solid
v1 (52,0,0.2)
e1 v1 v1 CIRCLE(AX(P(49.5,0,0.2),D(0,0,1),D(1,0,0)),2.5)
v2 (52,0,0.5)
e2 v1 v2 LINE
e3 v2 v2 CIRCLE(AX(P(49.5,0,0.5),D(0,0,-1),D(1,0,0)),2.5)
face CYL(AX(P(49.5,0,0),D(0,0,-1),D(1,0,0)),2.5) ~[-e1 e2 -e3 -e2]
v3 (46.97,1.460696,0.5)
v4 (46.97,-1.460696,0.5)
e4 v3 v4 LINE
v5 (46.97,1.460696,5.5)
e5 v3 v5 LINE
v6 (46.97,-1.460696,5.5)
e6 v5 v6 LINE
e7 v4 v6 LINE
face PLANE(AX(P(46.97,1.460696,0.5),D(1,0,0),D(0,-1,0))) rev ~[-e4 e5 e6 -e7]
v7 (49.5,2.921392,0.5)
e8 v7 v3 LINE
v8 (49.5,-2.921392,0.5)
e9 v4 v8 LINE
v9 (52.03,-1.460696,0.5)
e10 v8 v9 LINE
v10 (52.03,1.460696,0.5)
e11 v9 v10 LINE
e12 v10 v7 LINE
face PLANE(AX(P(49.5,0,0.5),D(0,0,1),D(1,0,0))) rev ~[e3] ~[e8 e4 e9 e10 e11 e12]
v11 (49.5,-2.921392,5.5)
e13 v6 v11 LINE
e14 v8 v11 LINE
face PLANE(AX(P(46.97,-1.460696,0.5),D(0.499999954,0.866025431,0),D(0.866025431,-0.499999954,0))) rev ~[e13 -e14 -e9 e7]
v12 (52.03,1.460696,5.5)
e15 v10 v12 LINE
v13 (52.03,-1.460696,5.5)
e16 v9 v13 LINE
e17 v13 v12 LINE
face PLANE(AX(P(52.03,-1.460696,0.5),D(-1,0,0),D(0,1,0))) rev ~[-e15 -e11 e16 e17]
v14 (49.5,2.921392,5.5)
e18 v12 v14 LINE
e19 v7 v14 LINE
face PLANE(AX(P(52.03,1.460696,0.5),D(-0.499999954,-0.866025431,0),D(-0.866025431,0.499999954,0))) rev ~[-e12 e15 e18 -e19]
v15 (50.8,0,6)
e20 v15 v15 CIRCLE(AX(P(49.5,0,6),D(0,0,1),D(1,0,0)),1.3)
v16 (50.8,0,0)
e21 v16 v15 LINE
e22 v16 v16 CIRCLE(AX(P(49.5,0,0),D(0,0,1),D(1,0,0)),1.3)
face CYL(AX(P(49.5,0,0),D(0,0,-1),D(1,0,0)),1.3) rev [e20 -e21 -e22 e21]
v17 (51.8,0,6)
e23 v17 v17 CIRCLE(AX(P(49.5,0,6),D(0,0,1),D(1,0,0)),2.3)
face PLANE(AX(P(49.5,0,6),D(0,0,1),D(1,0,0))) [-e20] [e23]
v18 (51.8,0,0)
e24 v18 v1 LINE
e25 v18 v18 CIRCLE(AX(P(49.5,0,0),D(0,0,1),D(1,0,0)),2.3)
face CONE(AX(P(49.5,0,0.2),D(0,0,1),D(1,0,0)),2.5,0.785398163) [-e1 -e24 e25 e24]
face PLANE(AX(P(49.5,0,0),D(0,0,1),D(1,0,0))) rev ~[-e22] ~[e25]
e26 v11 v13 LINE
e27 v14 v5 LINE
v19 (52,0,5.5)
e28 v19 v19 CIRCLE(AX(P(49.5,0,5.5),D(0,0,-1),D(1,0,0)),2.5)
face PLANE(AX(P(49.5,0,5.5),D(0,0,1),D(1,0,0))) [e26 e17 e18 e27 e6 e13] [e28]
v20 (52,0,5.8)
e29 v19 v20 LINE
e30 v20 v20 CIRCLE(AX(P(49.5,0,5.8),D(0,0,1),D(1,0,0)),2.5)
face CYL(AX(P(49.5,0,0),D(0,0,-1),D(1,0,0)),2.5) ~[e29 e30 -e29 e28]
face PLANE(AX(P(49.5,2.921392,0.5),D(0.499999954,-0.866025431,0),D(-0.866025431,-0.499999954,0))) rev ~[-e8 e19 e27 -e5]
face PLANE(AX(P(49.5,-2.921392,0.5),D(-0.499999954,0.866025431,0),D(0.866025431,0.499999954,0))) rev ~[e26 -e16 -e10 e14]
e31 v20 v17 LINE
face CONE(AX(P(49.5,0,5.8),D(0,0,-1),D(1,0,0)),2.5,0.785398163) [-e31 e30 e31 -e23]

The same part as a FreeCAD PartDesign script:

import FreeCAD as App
import Part
import Sketcher
Q = App.Units.Quantity


def edges_at(feature, points):
    """Names of the edges that pass closest to the given points."""
    edges = feature.Shape.Edges
    near = lambda p: min(range(len(edges)), key=lambda i: edges[i].distToShape(Part.Vertex(*p))[0])
    return sorted({f"Edge{near(p) + 1}" for p in points})


def add_polygon(sketch, points):
    """Adds a closed chain of lines whose ends are joined by coincident constraints."""
    first, n = sketch.GeometryCount, len(points)
    for a, b in zip(points, points[1:] + points[:1]):
        sketch.addGeometry(Part.LineSegment(App.Vector(*a, 0), App.Vector(*b, 0)), False)
    for i in range(n):
        sketch.addConstraint(Sketcher.Constraint("Coincident", first + i, 2, first + (i + 1) % n, 1))

doc = App.newDocument("Part")
body = doc.addObject("PartDesign::Body", "Body")

sketch1 = doc.addObject("Sketcher::SketchObject", "Sketch")
body.addObject(sketch1)
sketch1.AttachmentSupport = (doc.XY_Plane, [""])
sketch1.MapMode = "FlatFace"
sketch1.addGeometry(Part.Circle(App.Vector(0, 0, 0), App.Vector(0, 0, 1), 2.5), False)
sketch1.addGeometry(Part.Circle(App.Vector(0, 0, 0), App.Vector(0, 0, 1), 1.3), False)
sketch1.addConstraint(Sketcher.Constraint("Coincident", 0, 3, -1, 1))
sketch1.addConstraint(Sketcher.Constraint("Coincident", 1, 3, -1, 1))
sketch1.addConstraint(Sketcher.Constraint("Diameter", 0, Q("5 mm")))
sketch1.addConstraint(Sketcher.Constraint("Diameter", 1, Q("2.6 mm")))
pad1 = doc.addObject("PartDesign::Pad", "Pad")
body.addObject(pad1)
pad1.Profile = sketch1
pad1.Length = 6

sketch2 = doc.addObject("Sketcher::SketchObject", "Sketch001")
body.addObject(sketch2)
sketch2.AttachmentSupport = (doc.XY_Plane, [""])
sketch2.MapMode = "FlatFace"
sketch2.AttachmentOffset = App.Placement(App.Vector(0, 0, 0.5), App.Rotation())
add_polygon(sketch2, [(2.5, -1.5), (2.5, 1.5), (0, 2.9), (-2.5, 1.5), (-2.5, -1.5), (0, -2.9)])
sketch2.addGeometry(Part.Circle(App.Vector(0, 0, 0), App.Vector(0, 0, 1), 1.3), False)
sketch2.addConstraint(Sketcher.Constraint("Vertical", 0))
sketch2.addConstraint(Sketcher.Constraint("Vertical", 3))
sketch2.addConstraint(Sketcher.Constraint("Coincident", 6, 3, -1, 1))
sketch2.addConstraint(Sketcher.Constraint("Symmetric", 0, 2, 3, 2, -1, 1))
sketch2.addConstraint(Sketcher.Constraint("Symmetric", 1, 2, 4, 2, -1, 1))
sketch2.addConstraint(Sketcher.Constraint("PointOnObject", 1, 2, -2))
sketch2.addConstraint(Sketcher.Constraint("Parallel", 2, 5))
sketch2.addConstraint(Sketcher.Constraint("Horizontal", 0, 2, 2, 2))
sketch2.addConstraint(Sketcher.Constraint("Diameter", 6, Q("2.6 mm")))
sketch2.addConstraint(Sketcher.Constraint("Angle", 1, Q("150.000003 deg")))
sketch2.addConstraint(Sketcher.Constraint("DistanceX", -1, 1, 0, 2, Q("2.53 mm")))
sketch2.addConstraint(Sketcher.Constraint("DistanceY", 0, 1, 0, 2, Q("2.921392 mm")))
pad2 = doc.addObject("PartDesign::Pad", "Pad001")
body.addObject(pad2)
pad2.Profile = sketch2
pad2.Length = 5
doc.recompute()

chamfer = doc.addObject("PartDesign::Chamfer", "Chamfer")
body.addObject(chamfer)
chamfer.Base = (pad2, edges_at(pad2, [(-2.5, 0, 6), (-2.5, 0, 0)]))
chamfer.Size = 0.2
body2 = doc.addObject("PartDesign::Body", "Body001")
doc.recompute()

body.Placement = App.Placement(App.Vector(49.5, 0, 0), App.Rotation(App.Vector(0, 0, 1), 0))
boolean = doc.addObject("PartDesign::Boolean", "Boolean")
body2.addObject(boolean)
boolean.Type = "Fuse"
boolean.addObjects([body])

doc.recompute()
